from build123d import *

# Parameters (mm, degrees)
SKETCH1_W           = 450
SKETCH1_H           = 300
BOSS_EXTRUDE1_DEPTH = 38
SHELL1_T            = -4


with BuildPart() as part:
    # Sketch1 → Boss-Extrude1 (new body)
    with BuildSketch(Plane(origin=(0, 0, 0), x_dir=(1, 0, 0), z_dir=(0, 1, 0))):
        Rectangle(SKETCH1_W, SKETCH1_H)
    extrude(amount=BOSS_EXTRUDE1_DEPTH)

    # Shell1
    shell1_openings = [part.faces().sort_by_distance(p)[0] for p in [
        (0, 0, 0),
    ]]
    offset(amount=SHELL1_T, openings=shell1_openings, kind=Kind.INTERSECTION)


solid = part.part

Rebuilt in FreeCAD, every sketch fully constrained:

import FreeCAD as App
import Part
import Sketcher

V = App.Vector
Q = App.Units.Quantity


def faces_at(feature, points):
    """Names of the faces that lie closest to the given points."""
    faces = feature.Shape.Faces
    near = lambda p: min(range(len(faces)), key=lambda i: faces[i].distToShape(Part.Vertex(*p))[0])
    return sorted({f"Face{near(p) + 1}" for p in points})


def add_polygon(sketch, points):
    """Adds a closed chain of lines whose ends are joined by coincident constraints."""
    first, n = sketch.GeometryCount, len(points)
    for a, b in zip(points, points[1:] + points[:1]):
        sketch.addGeometry(Part.LineSegment(App.Vector(*a, 0), App.Vector(*b, 0)), False)
    for i in range(n):
        sketch.addConstraint(Sketcher.Constraint("Coincident", first + i, 2, first + (i + 1) % n, 1))

doc = App.newDocument("Part")
params = doc.addObject("Spreadsheet::Sheet", "Params")
for row, (alias, value) in enumerate([
    ("sketch1_width", "450 mm"),
    ("sketch1_height", "300 mm"),
    ("pad1_length", "38 mm"),
    ("thickness_wall", "4 mm"),
], start=1):
    params.set(f"A{row}", alias)
    params.set(f"B{row}", "=" + value)
    params.setAlias(f"B{row}", alias)

body = doc.addObject("PartDesign::Body", "Body")

# Sketch on XZ plane
sketch1 = doc.addObject("Sketcher::SketchObject", "Sketch")
body.addObject(sketch1)
sketch1.AttachmentSupport = (doc.XZ_Plane, [""])
sketch1.MapMode = "FlatFace"
add_polygon(sketch1, [(-225, -150), (-225, 150), (225, 150), (225, -150)])  # lines 0-3
sketch1.addConstraint([
    Sketcher.Constraint("Vertical", 0),
    Sketcher.Constraint("Horizontal", 1),
    Sketcher.Constraint("Vertical", 2),
    Sketcher.Constraint("Horizontal", 3),
    Sketcher.Constraint("Symmetric", 0, 2, 2, 2, -1, 1),
    Sketcher.Constraint("DistanceX", 1, 1, 1, 2, Q("450 mm")),
    Sketcher.Constraint("DistanceY", 0, 1, 0, 2, Q("300 mm")),
])
sketch1.setExpression("Constraints[9]", "Params.sketch1_width")
sketch1.setExpression("Constraints[10]", "Params.sketch1_height")
pad1 = doc.addObject("PartDesign::Pad", "Pad")
body.addObject(pad1)
pad1.Profile = sketch1
pad1.setExpression("Length", "Params.pad1_length")
pad1.Reversed = True
doc.recompute()

thickness = doc.addObject("PartDesign::Thickness", "Thickness")
body.addObject(thickness)
thickness.Base = (pad1, faces_at(pad1, [(0, 0, 0)]))
thickness.setExpression("Value", "Params.thickness_wall")
thickness.Reversed = True
thickness.Join = "Intersection"

doc.recompute()
